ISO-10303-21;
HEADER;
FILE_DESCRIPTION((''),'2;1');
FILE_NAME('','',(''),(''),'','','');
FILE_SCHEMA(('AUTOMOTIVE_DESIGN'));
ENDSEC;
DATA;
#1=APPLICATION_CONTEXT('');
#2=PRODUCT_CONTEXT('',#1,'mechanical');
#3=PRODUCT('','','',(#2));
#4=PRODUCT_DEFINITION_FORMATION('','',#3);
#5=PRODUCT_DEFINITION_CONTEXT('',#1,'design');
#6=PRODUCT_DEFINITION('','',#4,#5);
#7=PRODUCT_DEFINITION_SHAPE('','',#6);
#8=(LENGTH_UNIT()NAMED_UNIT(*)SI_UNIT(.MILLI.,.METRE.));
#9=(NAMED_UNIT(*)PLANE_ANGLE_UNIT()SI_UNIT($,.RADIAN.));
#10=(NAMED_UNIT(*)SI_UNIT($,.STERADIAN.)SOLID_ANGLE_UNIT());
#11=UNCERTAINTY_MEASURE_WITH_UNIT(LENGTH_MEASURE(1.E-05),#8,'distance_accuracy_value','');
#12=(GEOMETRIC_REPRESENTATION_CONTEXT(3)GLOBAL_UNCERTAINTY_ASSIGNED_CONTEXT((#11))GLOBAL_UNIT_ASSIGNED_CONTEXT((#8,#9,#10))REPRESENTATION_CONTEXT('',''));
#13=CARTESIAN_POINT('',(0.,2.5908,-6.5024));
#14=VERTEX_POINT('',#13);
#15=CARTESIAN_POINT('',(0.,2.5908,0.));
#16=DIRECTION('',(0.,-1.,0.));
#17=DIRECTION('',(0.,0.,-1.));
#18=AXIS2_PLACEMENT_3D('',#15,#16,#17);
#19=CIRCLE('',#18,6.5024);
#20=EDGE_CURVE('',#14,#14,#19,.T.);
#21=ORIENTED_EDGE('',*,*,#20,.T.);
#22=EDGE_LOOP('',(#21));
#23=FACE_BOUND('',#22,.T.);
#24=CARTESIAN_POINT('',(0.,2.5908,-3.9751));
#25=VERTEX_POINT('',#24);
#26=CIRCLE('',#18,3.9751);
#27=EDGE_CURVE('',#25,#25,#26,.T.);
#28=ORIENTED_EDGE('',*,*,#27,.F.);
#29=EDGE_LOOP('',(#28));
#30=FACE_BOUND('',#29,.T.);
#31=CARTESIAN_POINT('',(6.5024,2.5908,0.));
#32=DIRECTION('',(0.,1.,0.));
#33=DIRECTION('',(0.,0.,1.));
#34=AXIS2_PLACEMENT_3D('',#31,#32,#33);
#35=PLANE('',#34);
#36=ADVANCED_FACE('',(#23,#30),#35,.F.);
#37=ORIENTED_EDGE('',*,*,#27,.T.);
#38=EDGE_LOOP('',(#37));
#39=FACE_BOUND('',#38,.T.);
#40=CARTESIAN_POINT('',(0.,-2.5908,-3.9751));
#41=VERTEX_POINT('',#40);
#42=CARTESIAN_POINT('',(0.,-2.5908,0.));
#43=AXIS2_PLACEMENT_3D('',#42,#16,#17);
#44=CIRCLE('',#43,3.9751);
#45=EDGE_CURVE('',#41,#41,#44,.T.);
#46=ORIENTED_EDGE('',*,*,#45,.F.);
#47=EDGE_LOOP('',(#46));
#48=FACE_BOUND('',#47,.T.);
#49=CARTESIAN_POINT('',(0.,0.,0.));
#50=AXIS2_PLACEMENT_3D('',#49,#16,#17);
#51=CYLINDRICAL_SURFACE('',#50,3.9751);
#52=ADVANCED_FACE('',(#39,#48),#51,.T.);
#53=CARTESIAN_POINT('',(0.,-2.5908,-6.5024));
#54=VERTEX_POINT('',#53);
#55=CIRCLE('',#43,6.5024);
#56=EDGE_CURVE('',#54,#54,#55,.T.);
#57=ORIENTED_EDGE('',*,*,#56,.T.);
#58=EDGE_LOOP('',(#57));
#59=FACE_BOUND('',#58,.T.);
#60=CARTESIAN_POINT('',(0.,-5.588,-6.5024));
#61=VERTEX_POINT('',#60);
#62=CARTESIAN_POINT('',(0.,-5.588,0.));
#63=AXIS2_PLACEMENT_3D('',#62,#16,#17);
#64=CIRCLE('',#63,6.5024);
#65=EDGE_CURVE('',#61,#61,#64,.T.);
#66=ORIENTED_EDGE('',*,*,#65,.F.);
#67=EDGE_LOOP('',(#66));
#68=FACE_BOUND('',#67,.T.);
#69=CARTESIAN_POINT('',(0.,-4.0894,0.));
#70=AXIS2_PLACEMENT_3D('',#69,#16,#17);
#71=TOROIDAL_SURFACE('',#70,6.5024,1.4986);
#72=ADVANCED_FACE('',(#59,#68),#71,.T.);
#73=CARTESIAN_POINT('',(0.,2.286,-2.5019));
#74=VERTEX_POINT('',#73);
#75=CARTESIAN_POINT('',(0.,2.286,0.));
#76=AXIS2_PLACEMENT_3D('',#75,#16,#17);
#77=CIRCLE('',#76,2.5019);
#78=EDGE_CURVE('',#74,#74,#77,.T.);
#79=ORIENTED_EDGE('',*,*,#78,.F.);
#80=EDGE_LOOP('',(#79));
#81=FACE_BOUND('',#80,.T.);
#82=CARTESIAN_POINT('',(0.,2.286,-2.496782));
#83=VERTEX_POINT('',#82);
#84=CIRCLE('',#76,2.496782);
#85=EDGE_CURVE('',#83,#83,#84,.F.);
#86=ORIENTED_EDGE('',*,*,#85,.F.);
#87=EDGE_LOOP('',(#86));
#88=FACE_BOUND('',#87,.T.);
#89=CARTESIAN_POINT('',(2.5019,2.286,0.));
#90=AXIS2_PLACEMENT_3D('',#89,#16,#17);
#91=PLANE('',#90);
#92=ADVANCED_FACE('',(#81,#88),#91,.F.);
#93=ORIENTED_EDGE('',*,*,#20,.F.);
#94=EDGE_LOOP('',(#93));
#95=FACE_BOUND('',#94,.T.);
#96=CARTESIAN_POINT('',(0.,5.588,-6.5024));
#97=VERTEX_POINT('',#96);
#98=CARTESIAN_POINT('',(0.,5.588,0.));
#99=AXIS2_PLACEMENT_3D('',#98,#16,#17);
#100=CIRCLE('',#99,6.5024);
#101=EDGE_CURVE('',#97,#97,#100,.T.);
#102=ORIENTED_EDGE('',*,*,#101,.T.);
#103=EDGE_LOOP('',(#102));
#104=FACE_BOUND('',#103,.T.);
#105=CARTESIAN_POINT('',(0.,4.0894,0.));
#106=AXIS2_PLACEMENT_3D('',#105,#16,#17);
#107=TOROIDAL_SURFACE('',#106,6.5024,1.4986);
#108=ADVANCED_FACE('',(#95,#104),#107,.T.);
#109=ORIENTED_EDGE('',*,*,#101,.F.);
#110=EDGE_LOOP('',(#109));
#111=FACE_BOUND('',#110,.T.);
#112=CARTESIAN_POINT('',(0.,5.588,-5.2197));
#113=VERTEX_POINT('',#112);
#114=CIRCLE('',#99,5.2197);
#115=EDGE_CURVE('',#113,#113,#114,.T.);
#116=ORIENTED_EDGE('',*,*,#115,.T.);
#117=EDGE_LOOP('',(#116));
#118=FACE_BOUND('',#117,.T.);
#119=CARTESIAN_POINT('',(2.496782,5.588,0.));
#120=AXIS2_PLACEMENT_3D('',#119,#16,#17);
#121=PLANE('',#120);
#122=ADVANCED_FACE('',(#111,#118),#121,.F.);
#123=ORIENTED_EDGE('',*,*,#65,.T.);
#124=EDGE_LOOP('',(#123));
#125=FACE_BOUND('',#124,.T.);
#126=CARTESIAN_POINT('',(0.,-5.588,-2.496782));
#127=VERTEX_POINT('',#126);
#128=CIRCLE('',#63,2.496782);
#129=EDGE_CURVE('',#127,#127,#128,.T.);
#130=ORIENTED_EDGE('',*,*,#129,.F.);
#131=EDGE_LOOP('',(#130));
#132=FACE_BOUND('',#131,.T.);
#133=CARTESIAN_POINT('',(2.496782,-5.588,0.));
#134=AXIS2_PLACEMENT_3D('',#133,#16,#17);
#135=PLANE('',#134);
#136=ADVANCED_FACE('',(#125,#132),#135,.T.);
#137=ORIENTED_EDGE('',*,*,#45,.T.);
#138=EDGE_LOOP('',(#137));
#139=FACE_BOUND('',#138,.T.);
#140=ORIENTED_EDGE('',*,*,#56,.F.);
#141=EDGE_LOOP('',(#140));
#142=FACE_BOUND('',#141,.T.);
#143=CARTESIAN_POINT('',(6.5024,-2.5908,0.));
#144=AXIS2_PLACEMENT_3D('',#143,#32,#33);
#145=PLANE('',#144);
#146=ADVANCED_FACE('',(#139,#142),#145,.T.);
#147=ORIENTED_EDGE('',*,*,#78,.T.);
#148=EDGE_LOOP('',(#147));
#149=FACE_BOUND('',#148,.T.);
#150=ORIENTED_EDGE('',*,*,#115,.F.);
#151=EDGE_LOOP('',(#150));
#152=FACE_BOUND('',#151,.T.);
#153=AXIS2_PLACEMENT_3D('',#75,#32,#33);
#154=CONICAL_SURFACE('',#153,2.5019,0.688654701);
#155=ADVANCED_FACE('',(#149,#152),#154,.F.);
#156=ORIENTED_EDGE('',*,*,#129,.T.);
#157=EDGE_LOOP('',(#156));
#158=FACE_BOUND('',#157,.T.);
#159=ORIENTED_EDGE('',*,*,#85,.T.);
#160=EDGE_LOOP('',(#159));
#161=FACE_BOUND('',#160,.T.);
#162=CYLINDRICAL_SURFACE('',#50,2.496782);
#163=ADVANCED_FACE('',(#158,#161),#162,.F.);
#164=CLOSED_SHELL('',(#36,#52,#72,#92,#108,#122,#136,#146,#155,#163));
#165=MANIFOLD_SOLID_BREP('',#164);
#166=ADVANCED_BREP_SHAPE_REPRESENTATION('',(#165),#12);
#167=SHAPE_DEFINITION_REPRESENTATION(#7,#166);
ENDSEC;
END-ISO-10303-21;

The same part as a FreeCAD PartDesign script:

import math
import FreeCAD as App
import Part
import Sketcher
from FreeCAD import Vector
Q = App.Units.Quantity


def add_polygon(sketch, points):
    """Adds a closed chain of lines whose ends are joined by coincident constraints."""
    first, n = sketch.GeometryCount, len(points)
    for a, b in zip(points, points[1:] + points[:1]):
        sketch.addGeometry(Part.LineSegment(App.Vector(*a, 0), App.Vector(*b, 0)), False)
    for i in range(n):
        sketch.addConstraint(Sketcher.Constraint("Coincident", first + i, 2, first + (i + 1) % n, 1))

doc = App.newDocument("Part")
body = doc.addObject("PartDesign::Body", "Body")

# Sketch on XY plane
sketch1 = body.newObject("Sketcher::SketchObject", "Sketch")
sketch1.AttachmentSupport = (doc.getObject("XY_Plane"), [""])
sketch1.MapMode = "FlatFace"
sketch1.addGeometry([
    Part.LineSegment(Vector(2.5, 5.6, 0), Vector(2.5, -5.6, 0)),  # 0
    Part.LineSegment(Vector(2.5, -5.6, 0), Vector(6.5, -5.6, 0)),  # 1
    Part.ArcOfCircle(Part.Circle(Vector(6.5, -4.1, 0), Vector(0, 0, 1), 1.5), math.radians(-90), math.radians(90)),  # 2
    Part.LineSegment(Vector(6.5, -2.6, 0), Vector(4, -2.6, 0)),  # 3
    Part.LineSegment(Vector(4, -2.6, 0), Vector(4, 2.6, 0)),  # 4
    Part.LineSegment(Vector(4, 2.6, 0), Vector(6.5, 2.6, 0)),  # 5
    Part.ArcOfCircle(Part.Circle(Vector(6.5, 4.1, 0), Vector(0, 0, 1), 1.5), math.radians(-90), math.radians(90)),  # 6
    Part.LineSegment(Vector(6.5, 5.6, 0), Vector(2.5, 5.6, 0)),  # 7
], False)
sketch1.addConstraint([
    Sketcher.Constraint("Coincident", 0, 2, 1, 1),
    Sketcher.Constraint("Tangent", 1, 2, 2, 1),
    Sketcher.Constraint("Tangent", 2, 2, 3, 1),
    Sketcher.Constraint("Coincident", 3, 2, 4, 1),
    Sketcher.Constraint("Coincident", 4, 2, 5, 1),
    Sketcher.Constraint("Tangent", 5, 2, 6, 1),
    Sketcher.Constraint("Tangent", 6, 2, 7, 1),
    Sketcher.Constraint("Coincident", 7, 2, 0, 1),
    Sketcher.Constraint("Vertical", 0),
    Sketcher.Constraint("Horizontal", 1),
    Sketcher.Constraint("Horizontal", 3),
    Sketcher.Constraint("Vertical", 4),
    Sketcher.Constraint("Horizontal", 5),
    Sketcher.Constraint("Horizontal", 7),
    Sketcher.Constraint("Equal", 2, 6),
    Sketcher.Constraint("Symmetric", 2, 3, 6, 3, -1),
    Sketcher.Constraint("Radius", 2, Q("0.059 in")),
    Sketcher.Constraint("DistanceY", 0, 2, 0, 1, Q("0.44 in")),
    Sketcher.Constraint("DistanceX", 3, 2, 3, 1, Q("0.0995 in")),
    Sketcher.Constraint("DistanceX", -1, 1, 2, 3, Q("0.256 in")),
    Sketcher.Constraint("DistanceX", 1, 1, 1, 2, 4.005618),
])
revolution = body.newObject("PartDesign::Revolution", "Revolution")
revolution.Profile = sketch1
revolution.ReferenceAxis = (sketch1, ["V_Axis"])
revolution.Angle = 360

# Sketch on XY plane
sketch2 = body.newObject("Sketcher::SketchObject", "Sketch001")
sketch2.AttachmentSupport = (doc.getObject("XY_Plane"), [""])
sketch2.MapMode = "FlatFace"
add_polygon(sketch2, [(5.2, 5.6), (0, 5.6), (0, 2.3), (2.5, 2.3)])  # lines 0-3
sketch2.addConstraint([
    Sketcher.Constraint("Horizontal", 0),
    Sketcher.Constraint("Vertical", 1),
    Sketcher.Constraint("Horizontal", 2),
    Sketcher.Constraint("PointOnObject", 0, 2, -2),
    Sketcher.Constraint("DistanceY", 1, 2, 1, 1, Q("0.13 in")),
    Sketcher.Constraint("DistanceY", -1, 1, 0, 2, Q("0.22 in")),
    Sketcher.Constraint("DistanceX", 0, 2, 0, 1, Q("0.2055 in")),
    Sketcher.Constraint("DistanceX", 2, 1, 2, 2, Q("0.0985 in")),
])
groove = body.newObject("PartDesign::Groove", "Groove")
groove.Profile = sketch2
groove.ReferenceAxis = (sketch2, ["V_Axis"])
groove.Angle = 360

doc.recompute()
